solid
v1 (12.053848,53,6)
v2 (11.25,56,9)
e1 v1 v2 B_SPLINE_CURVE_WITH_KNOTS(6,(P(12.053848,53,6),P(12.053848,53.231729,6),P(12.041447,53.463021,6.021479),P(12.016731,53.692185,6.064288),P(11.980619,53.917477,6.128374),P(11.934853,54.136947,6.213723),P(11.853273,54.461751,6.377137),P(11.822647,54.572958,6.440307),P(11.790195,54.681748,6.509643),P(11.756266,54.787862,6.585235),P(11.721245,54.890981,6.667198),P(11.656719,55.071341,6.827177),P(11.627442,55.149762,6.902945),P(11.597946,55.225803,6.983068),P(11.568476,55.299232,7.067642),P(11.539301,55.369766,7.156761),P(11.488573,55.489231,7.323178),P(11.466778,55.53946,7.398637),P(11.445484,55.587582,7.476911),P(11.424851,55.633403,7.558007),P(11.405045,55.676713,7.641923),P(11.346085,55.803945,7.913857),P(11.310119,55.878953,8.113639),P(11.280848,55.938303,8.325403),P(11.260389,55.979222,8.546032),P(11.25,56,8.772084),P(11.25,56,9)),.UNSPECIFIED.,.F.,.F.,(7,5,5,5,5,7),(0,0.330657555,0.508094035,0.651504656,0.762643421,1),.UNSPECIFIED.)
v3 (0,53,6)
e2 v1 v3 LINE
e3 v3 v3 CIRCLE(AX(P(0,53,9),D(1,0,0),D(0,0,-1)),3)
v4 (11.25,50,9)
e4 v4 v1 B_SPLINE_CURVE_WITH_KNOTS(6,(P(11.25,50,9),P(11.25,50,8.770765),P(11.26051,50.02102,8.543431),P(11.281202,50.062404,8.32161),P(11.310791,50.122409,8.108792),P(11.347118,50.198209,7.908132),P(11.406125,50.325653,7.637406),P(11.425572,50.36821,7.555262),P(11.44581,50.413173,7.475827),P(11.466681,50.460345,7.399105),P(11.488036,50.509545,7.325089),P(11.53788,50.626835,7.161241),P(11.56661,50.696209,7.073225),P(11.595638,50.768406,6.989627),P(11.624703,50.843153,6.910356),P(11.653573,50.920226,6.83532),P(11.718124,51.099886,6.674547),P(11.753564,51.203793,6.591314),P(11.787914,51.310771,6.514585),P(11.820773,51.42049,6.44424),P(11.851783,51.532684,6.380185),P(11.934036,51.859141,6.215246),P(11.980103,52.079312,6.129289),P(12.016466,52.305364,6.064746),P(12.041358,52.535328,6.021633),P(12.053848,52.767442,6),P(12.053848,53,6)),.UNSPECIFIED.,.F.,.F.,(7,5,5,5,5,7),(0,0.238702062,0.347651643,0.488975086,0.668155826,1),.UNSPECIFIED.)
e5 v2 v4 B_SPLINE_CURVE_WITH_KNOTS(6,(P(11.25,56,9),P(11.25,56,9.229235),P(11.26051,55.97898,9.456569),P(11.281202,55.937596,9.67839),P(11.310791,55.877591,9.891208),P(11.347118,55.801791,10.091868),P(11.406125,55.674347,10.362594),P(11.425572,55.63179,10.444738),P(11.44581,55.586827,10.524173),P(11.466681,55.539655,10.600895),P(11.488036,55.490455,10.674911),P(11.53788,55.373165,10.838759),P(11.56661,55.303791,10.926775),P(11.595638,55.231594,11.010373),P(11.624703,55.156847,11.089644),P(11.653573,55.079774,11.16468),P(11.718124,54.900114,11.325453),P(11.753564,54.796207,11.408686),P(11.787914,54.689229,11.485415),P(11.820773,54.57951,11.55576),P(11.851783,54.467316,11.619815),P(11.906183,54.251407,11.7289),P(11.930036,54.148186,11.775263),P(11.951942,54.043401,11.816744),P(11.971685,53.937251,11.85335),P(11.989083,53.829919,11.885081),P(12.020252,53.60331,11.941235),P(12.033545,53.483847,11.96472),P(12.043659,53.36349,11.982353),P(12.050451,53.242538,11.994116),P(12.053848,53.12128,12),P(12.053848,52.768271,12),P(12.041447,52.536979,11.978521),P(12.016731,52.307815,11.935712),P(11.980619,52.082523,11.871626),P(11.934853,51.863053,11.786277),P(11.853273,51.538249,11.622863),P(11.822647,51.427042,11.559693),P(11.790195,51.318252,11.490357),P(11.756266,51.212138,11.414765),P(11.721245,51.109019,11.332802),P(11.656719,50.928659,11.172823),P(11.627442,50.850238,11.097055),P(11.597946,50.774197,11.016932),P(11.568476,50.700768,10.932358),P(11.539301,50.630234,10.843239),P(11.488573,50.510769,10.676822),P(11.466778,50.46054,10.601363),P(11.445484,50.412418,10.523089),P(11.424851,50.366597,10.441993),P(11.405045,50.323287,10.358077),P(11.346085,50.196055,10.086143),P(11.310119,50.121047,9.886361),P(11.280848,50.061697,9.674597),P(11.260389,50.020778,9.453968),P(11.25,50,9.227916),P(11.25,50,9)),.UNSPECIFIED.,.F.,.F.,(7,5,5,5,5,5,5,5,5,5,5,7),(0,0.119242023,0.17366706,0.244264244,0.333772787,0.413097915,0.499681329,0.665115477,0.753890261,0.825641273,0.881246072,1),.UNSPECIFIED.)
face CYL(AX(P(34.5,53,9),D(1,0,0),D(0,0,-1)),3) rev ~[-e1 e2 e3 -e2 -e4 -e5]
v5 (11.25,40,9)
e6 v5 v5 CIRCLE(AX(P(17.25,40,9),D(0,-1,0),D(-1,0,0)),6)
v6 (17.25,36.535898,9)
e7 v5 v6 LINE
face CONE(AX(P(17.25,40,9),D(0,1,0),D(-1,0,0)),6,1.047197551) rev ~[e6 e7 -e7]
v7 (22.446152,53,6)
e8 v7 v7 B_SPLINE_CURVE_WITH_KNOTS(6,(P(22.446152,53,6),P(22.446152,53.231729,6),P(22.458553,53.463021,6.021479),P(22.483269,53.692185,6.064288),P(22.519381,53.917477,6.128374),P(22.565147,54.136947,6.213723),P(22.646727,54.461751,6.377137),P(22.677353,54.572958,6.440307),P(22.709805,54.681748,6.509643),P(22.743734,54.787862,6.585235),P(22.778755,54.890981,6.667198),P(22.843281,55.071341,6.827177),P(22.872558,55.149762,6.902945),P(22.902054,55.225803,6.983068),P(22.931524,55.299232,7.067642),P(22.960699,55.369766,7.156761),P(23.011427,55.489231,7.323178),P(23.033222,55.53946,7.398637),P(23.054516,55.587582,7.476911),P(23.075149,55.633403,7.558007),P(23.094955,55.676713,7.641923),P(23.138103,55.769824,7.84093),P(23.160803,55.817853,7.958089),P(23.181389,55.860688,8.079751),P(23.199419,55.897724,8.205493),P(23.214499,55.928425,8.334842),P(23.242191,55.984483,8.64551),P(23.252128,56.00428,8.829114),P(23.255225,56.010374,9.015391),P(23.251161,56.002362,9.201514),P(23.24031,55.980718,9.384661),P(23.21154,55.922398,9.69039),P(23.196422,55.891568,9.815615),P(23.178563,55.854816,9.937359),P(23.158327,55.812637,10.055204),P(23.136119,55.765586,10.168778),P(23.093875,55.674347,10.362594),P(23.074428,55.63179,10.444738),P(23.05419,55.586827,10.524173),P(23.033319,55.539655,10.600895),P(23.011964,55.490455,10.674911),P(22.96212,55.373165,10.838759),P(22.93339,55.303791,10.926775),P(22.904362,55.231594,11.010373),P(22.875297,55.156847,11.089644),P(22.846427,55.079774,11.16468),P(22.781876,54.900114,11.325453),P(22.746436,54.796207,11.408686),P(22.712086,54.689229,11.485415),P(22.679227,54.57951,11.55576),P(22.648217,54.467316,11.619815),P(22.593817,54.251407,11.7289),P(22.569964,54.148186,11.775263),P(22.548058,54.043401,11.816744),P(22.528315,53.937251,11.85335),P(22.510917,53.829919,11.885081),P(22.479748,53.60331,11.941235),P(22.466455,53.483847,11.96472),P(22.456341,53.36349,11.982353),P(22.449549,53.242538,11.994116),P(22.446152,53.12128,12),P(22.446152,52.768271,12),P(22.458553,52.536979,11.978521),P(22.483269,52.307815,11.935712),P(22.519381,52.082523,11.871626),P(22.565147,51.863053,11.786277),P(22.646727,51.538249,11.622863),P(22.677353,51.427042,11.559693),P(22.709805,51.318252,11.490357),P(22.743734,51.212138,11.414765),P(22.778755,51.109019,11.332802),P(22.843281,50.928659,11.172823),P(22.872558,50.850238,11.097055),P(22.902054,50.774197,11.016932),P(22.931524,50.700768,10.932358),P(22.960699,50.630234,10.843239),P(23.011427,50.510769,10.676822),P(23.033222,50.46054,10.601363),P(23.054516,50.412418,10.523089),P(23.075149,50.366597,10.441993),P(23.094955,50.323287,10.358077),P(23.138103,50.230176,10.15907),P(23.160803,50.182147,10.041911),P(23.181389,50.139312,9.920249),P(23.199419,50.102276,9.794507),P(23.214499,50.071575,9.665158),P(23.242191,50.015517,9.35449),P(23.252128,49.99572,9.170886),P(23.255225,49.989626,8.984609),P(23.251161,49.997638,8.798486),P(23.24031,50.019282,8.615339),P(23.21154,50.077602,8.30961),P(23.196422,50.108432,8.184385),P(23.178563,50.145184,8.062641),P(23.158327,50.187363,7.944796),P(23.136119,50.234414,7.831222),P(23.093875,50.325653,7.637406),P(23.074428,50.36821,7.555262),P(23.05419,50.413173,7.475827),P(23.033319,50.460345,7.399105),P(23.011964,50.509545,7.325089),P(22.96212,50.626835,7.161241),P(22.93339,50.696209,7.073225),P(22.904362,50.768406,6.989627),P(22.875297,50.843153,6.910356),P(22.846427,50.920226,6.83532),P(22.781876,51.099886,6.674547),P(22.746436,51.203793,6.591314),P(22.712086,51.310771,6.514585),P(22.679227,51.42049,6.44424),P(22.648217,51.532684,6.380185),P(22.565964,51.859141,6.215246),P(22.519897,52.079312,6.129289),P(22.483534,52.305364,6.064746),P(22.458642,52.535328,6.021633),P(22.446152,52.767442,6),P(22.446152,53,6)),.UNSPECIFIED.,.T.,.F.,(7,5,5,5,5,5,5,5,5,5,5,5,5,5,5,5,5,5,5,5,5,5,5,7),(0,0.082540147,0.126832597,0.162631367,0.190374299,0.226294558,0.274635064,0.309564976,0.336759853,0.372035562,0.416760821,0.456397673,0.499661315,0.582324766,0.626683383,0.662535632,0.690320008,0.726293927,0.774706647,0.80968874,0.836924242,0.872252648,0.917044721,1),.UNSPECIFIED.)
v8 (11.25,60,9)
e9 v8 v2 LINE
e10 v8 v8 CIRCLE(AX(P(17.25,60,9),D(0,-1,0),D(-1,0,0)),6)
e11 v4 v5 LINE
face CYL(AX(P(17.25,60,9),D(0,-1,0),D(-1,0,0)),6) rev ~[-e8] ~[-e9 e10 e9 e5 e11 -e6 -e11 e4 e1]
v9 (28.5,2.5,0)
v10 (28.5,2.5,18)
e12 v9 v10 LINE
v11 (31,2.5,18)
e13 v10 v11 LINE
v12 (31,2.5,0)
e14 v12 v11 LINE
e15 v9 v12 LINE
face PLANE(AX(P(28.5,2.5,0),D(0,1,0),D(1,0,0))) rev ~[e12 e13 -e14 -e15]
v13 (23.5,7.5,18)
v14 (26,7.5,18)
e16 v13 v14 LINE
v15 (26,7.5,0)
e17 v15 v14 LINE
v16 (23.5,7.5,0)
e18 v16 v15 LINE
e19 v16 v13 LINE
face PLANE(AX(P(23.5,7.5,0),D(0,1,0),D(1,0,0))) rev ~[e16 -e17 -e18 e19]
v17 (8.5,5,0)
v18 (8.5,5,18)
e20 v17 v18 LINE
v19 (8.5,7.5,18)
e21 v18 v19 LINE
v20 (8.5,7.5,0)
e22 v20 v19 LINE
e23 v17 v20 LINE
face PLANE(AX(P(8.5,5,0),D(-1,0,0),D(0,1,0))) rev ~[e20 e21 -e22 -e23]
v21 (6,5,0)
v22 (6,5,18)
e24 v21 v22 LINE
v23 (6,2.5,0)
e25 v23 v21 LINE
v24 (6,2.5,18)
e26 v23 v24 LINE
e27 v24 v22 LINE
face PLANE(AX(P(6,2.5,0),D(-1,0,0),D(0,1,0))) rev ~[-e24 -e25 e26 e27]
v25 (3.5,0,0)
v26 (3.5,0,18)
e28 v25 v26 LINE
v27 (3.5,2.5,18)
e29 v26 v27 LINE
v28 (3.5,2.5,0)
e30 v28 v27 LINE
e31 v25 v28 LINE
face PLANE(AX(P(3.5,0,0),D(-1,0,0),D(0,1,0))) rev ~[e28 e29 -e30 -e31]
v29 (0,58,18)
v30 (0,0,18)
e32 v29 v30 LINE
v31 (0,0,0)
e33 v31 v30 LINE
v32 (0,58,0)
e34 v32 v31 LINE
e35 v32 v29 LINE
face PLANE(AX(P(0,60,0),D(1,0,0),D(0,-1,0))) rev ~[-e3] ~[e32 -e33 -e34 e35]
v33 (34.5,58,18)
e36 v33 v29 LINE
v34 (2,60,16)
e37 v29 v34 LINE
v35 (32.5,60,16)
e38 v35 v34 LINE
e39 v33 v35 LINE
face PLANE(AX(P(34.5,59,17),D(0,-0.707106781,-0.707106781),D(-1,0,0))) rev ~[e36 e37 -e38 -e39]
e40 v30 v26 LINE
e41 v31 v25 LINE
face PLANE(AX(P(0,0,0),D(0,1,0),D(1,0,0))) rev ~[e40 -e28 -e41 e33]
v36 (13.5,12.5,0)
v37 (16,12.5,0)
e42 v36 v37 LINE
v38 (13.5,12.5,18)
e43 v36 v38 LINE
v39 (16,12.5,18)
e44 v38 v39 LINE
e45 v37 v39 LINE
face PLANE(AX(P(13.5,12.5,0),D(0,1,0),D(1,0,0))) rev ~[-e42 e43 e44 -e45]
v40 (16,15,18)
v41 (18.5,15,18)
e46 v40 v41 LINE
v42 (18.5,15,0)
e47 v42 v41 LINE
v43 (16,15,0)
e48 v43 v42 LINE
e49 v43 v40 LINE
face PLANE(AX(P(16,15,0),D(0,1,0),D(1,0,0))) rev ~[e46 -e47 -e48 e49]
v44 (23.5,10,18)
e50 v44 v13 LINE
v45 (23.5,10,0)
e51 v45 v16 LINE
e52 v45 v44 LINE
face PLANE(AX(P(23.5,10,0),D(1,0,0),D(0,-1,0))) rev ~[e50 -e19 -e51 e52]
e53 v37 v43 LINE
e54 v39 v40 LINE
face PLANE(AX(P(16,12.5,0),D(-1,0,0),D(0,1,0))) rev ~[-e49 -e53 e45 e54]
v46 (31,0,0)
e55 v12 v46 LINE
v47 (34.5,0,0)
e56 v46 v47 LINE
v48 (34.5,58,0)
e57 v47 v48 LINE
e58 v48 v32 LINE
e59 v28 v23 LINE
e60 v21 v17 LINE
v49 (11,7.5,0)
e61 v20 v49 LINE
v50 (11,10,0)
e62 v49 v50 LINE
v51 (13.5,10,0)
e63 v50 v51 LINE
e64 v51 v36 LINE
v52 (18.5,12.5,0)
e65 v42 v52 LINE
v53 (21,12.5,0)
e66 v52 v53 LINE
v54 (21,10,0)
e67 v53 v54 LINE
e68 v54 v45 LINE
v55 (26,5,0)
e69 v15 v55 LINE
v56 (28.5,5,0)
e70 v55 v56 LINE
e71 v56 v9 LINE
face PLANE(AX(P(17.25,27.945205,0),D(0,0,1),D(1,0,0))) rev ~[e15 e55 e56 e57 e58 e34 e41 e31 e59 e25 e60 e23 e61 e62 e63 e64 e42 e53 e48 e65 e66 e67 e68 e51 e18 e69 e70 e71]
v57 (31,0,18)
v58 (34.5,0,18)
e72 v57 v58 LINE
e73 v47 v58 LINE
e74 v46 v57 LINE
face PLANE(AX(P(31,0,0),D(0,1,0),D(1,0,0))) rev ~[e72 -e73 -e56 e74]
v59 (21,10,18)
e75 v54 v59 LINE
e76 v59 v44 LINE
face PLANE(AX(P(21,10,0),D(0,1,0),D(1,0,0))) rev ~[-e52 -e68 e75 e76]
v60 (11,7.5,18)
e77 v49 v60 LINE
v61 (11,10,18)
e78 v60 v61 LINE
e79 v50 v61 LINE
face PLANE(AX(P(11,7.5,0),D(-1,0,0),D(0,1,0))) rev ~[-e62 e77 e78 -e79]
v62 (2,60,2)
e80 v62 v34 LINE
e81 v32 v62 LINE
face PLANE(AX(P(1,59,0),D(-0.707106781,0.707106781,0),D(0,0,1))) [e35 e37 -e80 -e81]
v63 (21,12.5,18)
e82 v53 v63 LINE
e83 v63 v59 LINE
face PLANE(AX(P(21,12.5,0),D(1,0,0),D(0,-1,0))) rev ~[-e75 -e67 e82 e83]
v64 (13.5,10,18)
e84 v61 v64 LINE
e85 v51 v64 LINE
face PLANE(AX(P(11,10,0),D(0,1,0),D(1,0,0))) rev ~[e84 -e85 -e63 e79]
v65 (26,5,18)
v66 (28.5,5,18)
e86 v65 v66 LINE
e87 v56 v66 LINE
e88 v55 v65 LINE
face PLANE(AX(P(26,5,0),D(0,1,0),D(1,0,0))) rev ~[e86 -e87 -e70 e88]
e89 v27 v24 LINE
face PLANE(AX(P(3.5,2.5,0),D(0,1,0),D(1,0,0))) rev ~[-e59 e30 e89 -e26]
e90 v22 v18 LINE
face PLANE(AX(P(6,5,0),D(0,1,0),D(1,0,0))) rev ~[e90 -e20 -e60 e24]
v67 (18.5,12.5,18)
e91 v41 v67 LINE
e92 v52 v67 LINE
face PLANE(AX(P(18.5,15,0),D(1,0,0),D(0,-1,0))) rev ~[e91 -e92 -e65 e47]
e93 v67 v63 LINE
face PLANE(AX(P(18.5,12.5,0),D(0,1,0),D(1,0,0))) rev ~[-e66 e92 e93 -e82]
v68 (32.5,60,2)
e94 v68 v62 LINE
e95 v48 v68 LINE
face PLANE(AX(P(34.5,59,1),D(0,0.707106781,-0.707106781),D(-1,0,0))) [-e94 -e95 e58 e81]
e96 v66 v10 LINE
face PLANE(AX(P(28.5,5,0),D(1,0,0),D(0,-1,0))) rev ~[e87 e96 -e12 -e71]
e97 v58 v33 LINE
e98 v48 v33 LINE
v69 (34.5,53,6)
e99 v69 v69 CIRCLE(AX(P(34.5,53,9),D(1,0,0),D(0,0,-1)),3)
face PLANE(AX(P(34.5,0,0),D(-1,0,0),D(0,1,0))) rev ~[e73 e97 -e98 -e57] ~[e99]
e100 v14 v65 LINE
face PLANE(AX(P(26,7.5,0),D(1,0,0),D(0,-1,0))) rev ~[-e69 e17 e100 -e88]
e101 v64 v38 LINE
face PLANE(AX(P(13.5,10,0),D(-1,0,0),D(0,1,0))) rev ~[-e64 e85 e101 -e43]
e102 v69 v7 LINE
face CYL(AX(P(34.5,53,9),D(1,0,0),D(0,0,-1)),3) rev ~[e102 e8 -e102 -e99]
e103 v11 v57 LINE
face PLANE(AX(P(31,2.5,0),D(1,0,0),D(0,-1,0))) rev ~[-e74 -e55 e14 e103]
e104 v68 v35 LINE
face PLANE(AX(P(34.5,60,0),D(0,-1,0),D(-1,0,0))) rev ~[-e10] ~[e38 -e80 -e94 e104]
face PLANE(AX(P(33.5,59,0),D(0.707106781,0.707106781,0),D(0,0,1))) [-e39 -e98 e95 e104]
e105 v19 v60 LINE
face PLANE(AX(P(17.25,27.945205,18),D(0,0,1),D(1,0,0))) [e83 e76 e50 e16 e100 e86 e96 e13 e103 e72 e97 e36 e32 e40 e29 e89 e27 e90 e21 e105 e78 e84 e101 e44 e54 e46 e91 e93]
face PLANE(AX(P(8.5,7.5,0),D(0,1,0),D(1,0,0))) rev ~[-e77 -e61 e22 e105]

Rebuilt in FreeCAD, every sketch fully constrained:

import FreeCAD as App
import Part
import Sketcher

V = App.Vector
Q = App.Units.Quantity


def edges_at(feature, points):
    """Names of the edges that pass closest to the given points."""
    edges = feature.Shape.Edges
    near = lambda p: min(range(len(edges)), key=lambda i: edges[i].distToShape(Part.Vertex(*p))[0])
    return sorted({f"Edge{near(p) + 1}" for p in points})

doc = App.newDocument("Part")
body = doc.addObject("PartDesign::Body", "Body")

# Sketch on XY plane
sketch1 = body.newObject("Sketcher::SketchObject", "Sketch")
sketch1.AttachmentSupport = (doc.getObject("XY_Plane"), [""])
sketch1.MapMode = "FlatFace"
sketch1.addGeometry([
    Part.LineSegment(V(0, 0, 0), V(3.5, 0, 0)),  # 0
    Part.LineSegment(V(3.5, 0, 0), V(3.5, 2.5, 0)),  # 1
    Part.LineSegment(V(3.5, 2.5, 0), V(6, 2.5, 0)),  # 2
    Part.LineSegment(V(6, 2.5, 0), V(6, 5, 0)),  # 3
    Part.LineSegment(V(6, 5, 0), V(8.5, 5, 0)),  # 4
    Part.LineSegment(V(8.5, 5, 0), V(8.5, 7.5, 0)),  # 5
    Part.LineSegment(V(8.5, 7.5, 0), V(11, 7.5, 0)),  # 6
    Part.LineSegment(V(11, 7.5, 0), V(11, 10, 0)),  # 7
    Part.LineSegment(V(11, 10, 0), V(13.5, 10, 0)),  # 8
    Part.LineSegment(V(13.5, 10, 0), V(13.5, 12.5, 0)),  # 9
    Part.LineSegment(V(13.5, 12.5, 0), V(16, 12.5, 0)),  # 10
    Part.LineSegment(V(16, 12.5, 0), V(16, 15, 0)),  # 11
    Part.LineSegment(V(16, 15, 0), V(18.5, 15, 0)),  # 12
    Part.LineSegment(V(18.5, 15, 0), V(18.5, 12.5, 0)),  # 13
    Part.LineSegment(V(18.5, 12.5, 0), V(21, 12.5, 0)),  # 14
    Part.LineSegment(V(21, 12.5, 0), V(21, 10, 0)),  # 15
    Part.LineSegment(V(21, 10, 0), V(23.5, 10, 0)),  # 16
    Part.LineSegment(V(23.5, 10, 0), V(23.5, 7.5, 0)),  # 17
    Part.LineSegment(V(23.5, 7.5, 0), V(26, 7.5, 0)),  # 18
    Part.LineSegment(V(26, 7.5, 0), V(26, 5, 0)),  # 19
    Part.LineSegment(V(26, 5, 0), V(28.5, 5, 0)),  # 20
    Part.LineSegment(V(28.5, 5, 0), V(28.5, 2.5, 0)),  # 21
    Part.LineSegment(V(28.5, 2.5, 0), V(31, 2.5, 0)),  # 22
    Part.LineSegment(V(31, 2.5, 0), V(31, 0, 0)),  # 23
    Part.LineSegment(V(31, 0, 0), V(34.5, 0, 0)),  # 24
    Part.LineSegment(V(34.5, 0, 0), V(34.5, 60, 0)),  # 25
    Part.LineSegment(V(34.5, 60, 0), V(0, 60, 0)),  # 26
    Part.LineSegment(V(0, 60, 0), V(0, 0, 0)),  # 27
], False)
sketch1.addConstraint([
    Sketcher.Constraint("Coincident", 0, 2, 1, 1),
    Sketcher.Constraint("Coincident", 1, 2, 2, 1),
    Sketcher.Constraint("Coincident", 2, 2, 3, 1),
    Sketcher.Constraint("Coincident", 3, 2, 4, 1),
    Sketcher.Constraint("Coincident", 4, 2, 5, 1),
    Sketcher.Constraint("Coincident", 5, 2, 6, 1),
    Sketcher.Constraint("Coincident", 6, 2, 7, 1),
    Sketcher.Constraint("Coincident", 7, 2, 8, 1),
    Sketcher.Constraint("Coincident", 8, 2, 9, 1),
    Sketcher.Constraint("Coincident", 9, 2, 10, 1),
    Sketcher.Constraint("Coincident", 10, 2, 11, 1),
    Sketcher.Constraint("Coincident", 11, 2, 12, 1),
    Sketcher.Constraint("Coincident", 12, 2, 13, 1),
    Sketcher.Constraint("Coincident", 13, 2, 14, 1),
    Sketcher.Constraint("Coincident", 14, 2, 15, 1),
    Sketcher.Constraint("Coincident", 15, 2, 16, 1),
    Sketcher.Constraint("Coincident", 16, 2, 17, 1),
    Sketcher.Constraint("Coincident", 17, 2, 18, 1),
    Sketcher.Constraint("Coincident", 18, 2, 19, 1),
    Sketcher.Constraint("Coincident", 19, 2, 20, 1),
    Sketcher.Constraint("Coincident", 20, 2, 21, 1),
    Sketcher.Constraint("Coincident", 21, 2, 22, 1),
    Sketcher.Constraint("Coincident", 22, 2, 23, 1),
    Sketcher.Constraint("Coincident", 23, 2, 24, 1),
    Sketcher.Constraint("Coincident", 24, 2, 25, 1),
    Sketcher.Constraint("Coincident", 25, 2, 26, 1),
    Sketcher.Constraint("Coincident", 26, 2, 27, 1),
    Sketcher.Constraint("Coincident", 27, 2, 0, 1),
    Sketcher.Constraint("Horizontal", 0),
    Sketcher.Constraint("Vertical", 1),
    Sketcher.Constraint("Horizontal", 2),
    Sketcher.Constraint("Vertical", 3),
    Sketcher.Constraint("Horizontal", 4),
    Sketcher.Constraint("Vertical", 5),
    Sketcher.Constraint("Horizontal", 6),
    Sketcher.Constraint("Vertical", 7),
    Sketcher.Constraint("Horizontal", 8),
    Sketcher.Constraint("Vertical", 9),
    Sketcher.Constraint("Horizontal", 10),
    Sketcher.Constraint("Vertical", 11),
    Sketcher.Constraint("Horizontal", 12),
    Sketcher.Constraint("Vertical", 13),
    Sketcher.Constraint("Horizontal", 14),
    Sketcher.Constraint("Vertical", 15),
    Sketcher.Constraint("Horizontal", 16),
    Sketcher.Constraint("Vertical", 17),
    Sketcher.Constraint("Horizontal", 18),
    Sketcher.Constraint("Vertical", 19),
    Sketcher.Constraint("Horizontal", 20),
    Sketcher.Constraint("Vertical", 21),
    Sketcher.Constraint("Horizontal", 22),
    Sketcher.Constraint("Vertical", 23),
    Sketcher.Constraint("Horizontal", 24),
    Sketcher.Constraint("Vertical", 25),
    Sketcher.Constraint("Horizontal", 26),
    Sketcher.Constraint("Vertical", 27),
    Sketcher.Constraint("Coincident", 27, 2, -1, 1),
    Sketcher.Constraint("PointOnObject", 23, 2, -1),
    Sketcher.Constraint("Horizontal", 10, 2, 13, 2),
    Sketcher.Constraint("Horizontal", 8, 2, 15, 2),
    Sketcher.Constraint("Horizontal", 6, 2, 17, 2),
    Sketcher.Constraint("Horizontal", 4, 2, 19, 2),
    Sketcher.Constraint("Horizontal", 2, 2, 21, 2),
    Sketcher.Constraint("Equal", 2, 4),
    Sketcher.Constraint("Equal", 4, 6),
    Sketcher.Constraint("Equal", 6, 8),
    Sketcher.Constraint("Equal", 8, 10),
    Sketcher.Constraint("Equal", 10, 12),
    Sketcher.Constraint("Equal", 12, 14),
    Sketcher.Constraint("Equal", 14, 16),
    Sketcher.Constraint("Equal", 16, 18),
    Sketcher.Constraint("Equal", 18, 20),
    Sketcher.Constraint("Equal", 20, 22),
    Sketcher.Constraint("Equal", 0, 24),
    Sketcher.Constraint("Equal", 22, 1),
    Sketcher.Constraint("Equal", 1, 3),
    Sketcher.Constraint("Equal", 3, 5),
    Sketcher.Constraint("Equal", 5, 7),
    Sketcher.Constraint("Equal", 7, 9),
    Sketcher.Constraint("Equal", 9, 11),
    Sketcher.Constraint("DistanceY", 25, 1, 25, 2, Q("60 mm")),
    Sketcher.Constraint("DistanceX", 0, 1, 0, 2, Q("3.5 mm")),
    Sketcher.Constraint("DistanceX", 2, 1, 2, 2, Q("2.5 mm")),
])
pad1 = body.newObject("PartDesign::Pad", "Pad")
pad1.Profile = sketch1
pad1.Length = 18

# Sketch on XY plane
sketch2 = body.newObject("Sketcher::SketchObject", "Sketch001")
sketch2.AttachmentSupport = (doc.getObject("XY_Plane"), [""])
sketch2.MapMode = "FlatFace"
sketch2.AttachmentOffset = App.Placement(V(0, 0, 9), App.Rotation())
sketch2.addGeometry([
    Part.LineSegment(V(11, 60, 0), V(11, 40, 0)),
    Part.LineSegment(V(11, 40, 0), V(17, 37, 0)),
    Part.LineSegment(V(17, 37, 0), V(17, 60, 0)),
    Part.LineSegment(V(17, 60, 0), V(11, 60, 0)),
], False)
sketch2.addGeometry(Part.LineSegment(V(17, 60, 0), V(17, 37, 0)), True)  # axis
sketch2.addConstraint([
    Sketcher.Constraint("Coincident", 0, 2, 1, 1),
    Sketcher.Constraint("Coincident", 1, 2, 2, 1),
    Sketcher.Constraint("Coincident", 2, 2, 3, 1),
    Sketcher.Constraint("Coincident", 3, 2, 0, 1),
    Sketcher.Constraint("Vertical", 0),
    Sketcher.Constraint("Vertical", 2),
    Sketcher.Constraint("Horizontal", 3),
    Sketcher.Constraint("Vertical", 4),
    Sketcher.Constraint("Coincident", 4, 1, 2, 2),
    Sketcher.Constraint("Equal", 2, 4),
    Sketcher.Constraint("DistanceX", 3, 2, 3, 1, Q("6 mm")),
    Sketcher.Constraint("DistanceY", 0, 2, 0, 1, Q("20 mm")),
    Sketcher.Constraint("Angle", 1, Q("-30 deg")),
    Sketcher.Constraint("DistanceY", -1, 1, 0, 2, Q("40 mm")),
    Sketcher.Constraint("DistanceX", -1, 1, 0, 2, Q("11.25 mm")),
])
groove = body.newObject("PartDesign::Groove", "Groove")
groove.Profile = sketch2
groove.ReferenceAxis = (sketch2, ["Axis0"])
groove.Angle = 360

# Sketch on YZ plane
sketch3 = body.newObject("Sketcher::SketchObject", "Sketch002")
sketch3.AttachmentSupport = (doc.getObject("YZ_Plane"), [""])
sketch3.MapMode = "FlatFace"
sketch3.AttachmentOffset = App.Placement(V(0, 0, 34.5), App.Rotation())
sketch3.addGeometry(Part.Circle(V(53, 9, 0), V(0, 0, 1), 3), False)
sketch3.addConstraint([
    Sketcher.Constraint("Diameter", 0, Q("6 mm")),
    Sketcher.Constraint("DistanceX", -1, 1, 0, 3, Q("53 mm")),
    Sketcher.Constraint("DistanceY", -1, 1, 0, 3, Q("9 mm")),
])
pocket1 = body.newObject("PartDesign::Pocket", "Pocket")
pocket1.Profile = sketch3
pocket1.Type = "ThroughAll"
doc.recompute()

chamfer = body.newObject("PartDesign::Chamfer", "Chamfer")
chamfer.Base = (pocket1, edges_at(pocket1, [
    (17.25, 60, 18),
    (17.25, 60, 0),
    (0, 60, 9),
    (34.5, 60, 9),
]))
chamfer.Size = 2

doc.recompute()
